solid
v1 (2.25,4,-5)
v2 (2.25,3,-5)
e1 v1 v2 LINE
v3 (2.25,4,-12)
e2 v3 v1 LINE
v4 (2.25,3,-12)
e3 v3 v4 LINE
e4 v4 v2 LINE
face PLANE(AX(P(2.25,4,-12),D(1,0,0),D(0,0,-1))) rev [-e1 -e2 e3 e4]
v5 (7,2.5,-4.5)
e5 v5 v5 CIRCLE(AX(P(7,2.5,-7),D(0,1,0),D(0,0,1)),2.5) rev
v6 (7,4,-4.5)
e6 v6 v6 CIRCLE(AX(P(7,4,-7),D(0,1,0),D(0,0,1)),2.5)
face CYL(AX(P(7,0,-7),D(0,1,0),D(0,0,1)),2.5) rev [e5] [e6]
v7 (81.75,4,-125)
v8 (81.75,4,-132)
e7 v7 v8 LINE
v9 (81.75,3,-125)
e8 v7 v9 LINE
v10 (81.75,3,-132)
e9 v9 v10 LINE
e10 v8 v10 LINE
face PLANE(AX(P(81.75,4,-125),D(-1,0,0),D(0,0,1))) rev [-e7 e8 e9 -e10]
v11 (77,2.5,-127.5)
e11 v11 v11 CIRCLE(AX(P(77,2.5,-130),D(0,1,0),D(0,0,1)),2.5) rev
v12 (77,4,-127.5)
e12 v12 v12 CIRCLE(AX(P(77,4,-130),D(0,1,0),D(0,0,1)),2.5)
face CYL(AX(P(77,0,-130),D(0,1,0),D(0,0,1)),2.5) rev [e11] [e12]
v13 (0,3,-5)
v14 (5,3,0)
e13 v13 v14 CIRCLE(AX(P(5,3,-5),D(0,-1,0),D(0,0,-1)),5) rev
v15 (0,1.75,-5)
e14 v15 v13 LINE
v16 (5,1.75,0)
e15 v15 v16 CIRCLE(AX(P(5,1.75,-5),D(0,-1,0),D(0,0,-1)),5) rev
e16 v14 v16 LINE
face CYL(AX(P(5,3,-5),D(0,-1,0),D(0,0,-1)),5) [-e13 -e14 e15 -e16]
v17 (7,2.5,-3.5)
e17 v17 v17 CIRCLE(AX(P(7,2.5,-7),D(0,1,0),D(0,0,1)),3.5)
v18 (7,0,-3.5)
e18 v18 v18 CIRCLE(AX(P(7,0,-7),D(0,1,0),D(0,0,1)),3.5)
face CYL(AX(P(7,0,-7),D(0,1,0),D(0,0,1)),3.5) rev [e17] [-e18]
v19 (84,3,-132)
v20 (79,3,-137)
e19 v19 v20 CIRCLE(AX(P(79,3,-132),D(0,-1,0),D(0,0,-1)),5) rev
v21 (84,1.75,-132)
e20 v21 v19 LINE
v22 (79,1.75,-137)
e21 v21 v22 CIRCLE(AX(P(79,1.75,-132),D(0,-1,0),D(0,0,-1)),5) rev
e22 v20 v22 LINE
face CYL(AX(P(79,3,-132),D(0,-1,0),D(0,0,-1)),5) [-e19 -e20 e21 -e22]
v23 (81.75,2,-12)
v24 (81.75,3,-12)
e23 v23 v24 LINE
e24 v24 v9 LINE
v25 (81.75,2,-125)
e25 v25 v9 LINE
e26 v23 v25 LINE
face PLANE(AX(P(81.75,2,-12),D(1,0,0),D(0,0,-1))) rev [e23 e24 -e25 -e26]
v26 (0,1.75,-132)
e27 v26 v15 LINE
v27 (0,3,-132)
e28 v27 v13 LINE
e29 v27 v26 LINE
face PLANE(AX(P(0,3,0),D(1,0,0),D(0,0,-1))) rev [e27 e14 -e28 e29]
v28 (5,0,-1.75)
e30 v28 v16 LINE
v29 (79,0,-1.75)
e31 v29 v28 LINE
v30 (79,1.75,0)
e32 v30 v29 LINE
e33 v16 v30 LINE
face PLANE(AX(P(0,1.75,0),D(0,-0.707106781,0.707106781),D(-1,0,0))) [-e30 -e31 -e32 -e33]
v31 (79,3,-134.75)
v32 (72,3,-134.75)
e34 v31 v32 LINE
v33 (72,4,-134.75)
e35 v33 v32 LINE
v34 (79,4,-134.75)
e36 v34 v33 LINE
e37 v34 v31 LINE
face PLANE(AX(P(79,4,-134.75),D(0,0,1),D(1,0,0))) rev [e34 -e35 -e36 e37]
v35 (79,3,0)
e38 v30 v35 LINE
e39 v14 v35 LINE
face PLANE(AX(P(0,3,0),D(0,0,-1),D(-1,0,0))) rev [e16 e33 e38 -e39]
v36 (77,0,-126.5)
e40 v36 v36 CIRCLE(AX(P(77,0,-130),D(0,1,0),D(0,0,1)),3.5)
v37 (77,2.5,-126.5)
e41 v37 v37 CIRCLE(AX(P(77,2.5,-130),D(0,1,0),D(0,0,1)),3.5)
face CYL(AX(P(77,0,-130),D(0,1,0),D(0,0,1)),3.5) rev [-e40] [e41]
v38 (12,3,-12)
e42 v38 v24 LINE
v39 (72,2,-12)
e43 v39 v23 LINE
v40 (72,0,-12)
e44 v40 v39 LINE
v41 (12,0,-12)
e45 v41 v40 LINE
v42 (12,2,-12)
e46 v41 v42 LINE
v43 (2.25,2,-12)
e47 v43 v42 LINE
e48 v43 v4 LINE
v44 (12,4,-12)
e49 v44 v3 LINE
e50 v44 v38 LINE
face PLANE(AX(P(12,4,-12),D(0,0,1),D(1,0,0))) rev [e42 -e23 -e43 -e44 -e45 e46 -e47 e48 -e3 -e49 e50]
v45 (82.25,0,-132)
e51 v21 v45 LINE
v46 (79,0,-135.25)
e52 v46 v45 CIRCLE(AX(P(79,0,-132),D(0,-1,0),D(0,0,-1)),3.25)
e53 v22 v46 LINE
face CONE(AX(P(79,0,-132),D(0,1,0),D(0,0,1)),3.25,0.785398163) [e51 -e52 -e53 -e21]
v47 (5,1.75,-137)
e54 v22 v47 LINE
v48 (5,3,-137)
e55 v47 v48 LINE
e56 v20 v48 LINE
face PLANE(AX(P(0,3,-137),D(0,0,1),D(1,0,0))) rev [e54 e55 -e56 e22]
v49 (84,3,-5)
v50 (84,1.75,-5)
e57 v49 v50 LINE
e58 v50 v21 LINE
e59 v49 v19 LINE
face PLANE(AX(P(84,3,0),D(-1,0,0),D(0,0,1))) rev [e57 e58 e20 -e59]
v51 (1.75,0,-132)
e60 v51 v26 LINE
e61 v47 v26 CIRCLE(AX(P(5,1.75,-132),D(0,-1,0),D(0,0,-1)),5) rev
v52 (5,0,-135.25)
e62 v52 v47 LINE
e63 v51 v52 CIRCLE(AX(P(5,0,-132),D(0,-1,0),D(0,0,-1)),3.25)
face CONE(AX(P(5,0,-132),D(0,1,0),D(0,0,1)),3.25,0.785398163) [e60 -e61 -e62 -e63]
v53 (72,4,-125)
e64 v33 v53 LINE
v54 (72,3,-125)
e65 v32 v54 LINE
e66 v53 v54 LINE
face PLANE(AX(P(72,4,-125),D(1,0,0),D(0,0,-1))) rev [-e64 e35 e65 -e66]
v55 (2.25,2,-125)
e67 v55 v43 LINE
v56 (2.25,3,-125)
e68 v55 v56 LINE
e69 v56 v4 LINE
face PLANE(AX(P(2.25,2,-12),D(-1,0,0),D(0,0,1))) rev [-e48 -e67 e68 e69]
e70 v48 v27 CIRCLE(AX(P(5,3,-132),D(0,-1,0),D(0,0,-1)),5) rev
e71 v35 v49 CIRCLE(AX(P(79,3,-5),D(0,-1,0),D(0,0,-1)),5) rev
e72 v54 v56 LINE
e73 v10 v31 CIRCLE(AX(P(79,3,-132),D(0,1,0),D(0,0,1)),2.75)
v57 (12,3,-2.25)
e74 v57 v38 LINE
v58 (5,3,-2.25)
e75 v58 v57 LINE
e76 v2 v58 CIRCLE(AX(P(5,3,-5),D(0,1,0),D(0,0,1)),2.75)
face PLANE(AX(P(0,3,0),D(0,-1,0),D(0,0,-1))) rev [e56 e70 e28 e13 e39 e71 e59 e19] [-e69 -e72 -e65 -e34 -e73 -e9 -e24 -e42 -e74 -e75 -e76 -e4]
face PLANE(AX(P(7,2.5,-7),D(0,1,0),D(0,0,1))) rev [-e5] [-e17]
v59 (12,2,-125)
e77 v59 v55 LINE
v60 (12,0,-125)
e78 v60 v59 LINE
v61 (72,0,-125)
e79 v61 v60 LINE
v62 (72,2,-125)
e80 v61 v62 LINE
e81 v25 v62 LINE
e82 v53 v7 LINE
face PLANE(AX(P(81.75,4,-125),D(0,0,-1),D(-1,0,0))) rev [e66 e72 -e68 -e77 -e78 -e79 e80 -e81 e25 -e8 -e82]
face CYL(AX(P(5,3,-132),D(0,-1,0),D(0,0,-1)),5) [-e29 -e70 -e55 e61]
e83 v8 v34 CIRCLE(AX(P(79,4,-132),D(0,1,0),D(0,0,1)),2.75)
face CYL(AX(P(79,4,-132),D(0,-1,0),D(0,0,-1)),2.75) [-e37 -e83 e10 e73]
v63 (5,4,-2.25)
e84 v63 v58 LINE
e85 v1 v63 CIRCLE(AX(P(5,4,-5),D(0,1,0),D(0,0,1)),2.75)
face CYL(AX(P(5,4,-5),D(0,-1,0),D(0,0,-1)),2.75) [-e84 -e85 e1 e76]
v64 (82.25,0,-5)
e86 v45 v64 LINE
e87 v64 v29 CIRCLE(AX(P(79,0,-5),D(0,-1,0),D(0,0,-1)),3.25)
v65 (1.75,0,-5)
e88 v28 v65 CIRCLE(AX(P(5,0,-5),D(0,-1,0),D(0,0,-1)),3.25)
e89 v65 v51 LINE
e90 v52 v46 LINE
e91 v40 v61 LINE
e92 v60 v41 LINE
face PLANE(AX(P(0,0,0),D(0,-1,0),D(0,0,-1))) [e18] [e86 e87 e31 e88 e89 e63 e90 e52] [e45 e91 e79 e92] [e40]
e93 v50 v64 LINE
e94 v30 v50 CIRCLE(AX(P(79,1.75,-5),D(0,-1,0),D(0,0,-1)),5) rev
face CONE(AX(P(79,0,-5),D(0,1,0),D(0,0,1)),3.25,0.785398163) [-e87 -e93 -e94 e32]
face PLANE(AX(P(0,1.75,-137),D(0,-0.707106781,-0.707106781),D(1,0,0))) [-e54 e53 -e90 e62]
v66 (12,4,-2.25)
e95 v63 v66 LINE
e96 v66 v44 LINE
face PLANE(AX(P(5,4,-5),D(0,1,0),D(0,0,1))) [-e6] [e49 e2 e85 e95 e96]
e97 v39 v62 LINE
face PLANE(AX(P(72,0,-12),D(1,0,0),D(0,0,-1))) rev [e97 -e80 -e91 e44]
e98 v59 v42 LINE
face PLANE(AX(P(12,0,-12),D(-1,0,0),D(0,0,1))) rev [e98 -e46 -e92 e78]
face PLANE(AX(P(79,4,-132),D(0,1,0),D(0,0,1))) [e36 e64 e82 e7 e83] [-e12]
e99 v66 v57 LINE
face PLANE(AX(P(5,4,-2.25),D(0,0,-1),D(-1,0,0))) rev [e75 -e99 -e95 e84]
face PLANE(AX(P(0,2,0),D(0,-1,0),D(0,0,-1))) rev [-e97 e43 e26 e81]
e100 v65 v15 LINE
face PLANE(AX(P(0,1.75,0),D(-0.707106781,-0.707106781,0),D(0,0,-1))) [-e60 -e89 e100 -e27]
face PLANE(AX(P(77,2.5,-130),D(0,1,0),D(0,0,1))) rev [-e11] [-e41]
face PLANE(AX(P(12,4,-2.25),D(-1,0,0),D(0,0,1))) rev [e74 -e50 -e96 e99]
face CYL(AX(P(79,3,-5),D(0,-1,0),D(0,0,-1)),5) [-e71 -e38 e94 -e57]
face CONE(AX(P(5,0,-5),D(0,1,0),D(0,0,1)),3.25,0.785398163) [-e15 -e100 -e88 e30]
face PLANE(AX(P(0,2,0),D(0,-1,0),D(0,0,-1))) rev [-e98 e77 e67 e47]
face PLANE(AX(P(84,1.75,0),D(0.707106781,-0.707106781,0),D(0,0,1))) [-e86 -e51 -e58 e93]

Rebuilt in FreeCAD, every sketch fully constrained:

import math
import FreeCAD as App
import Part
import Sketcher

V = App.Vector
Q = App.Units.Quantity


def edges_at(feature, points):
    """Names of the edges that pass closest to the given points."""
    edges = feature.Shape.Edges
    near = lambda p: min(range(len(edges)), key=lambda i: edges[i].distToShape(Part.Vertex(*p))[0])
    return sorted({f"Edge{near(p) + 1}" for p in points})


def add_polygon(sketch, points):
    """Adds a closed chain of lines whose ends are joined by coincident constraints."""
    first, n = sketch.GeometryCount, len(points)
    for a, b in zip(points, points[1:] + points[:1]):
        sketch.addGeometry(Part.LineSegment(App.Vector(*a, 0), App.Vector(*b, 0)), False)
    for i in range(n):
        sketch.addConstraint(Sketcher.Constraint("Coincident", first + i, 2, first + (i + 1) % n, 1))

doc = App.newDocument("Part")
body = doc.addObject("PartDesign::Body", "Body")

# Sketch on XZ plane
sketch1 = doc.addObject("Sketcher::SketchObject", "Sketch")
body.addObject(sketch1)
sketch1.AttachmentSupport = (doc.XZ_Plane, [""])
sketch1.MapMode = "FlatFace"
add_polygon(sketch1, [(0, -137), (0, 0), (84, 0), (84, -137)])  # lines 0-3
sketch1.addConstraint(Sketcher.Constraint("Vertical", 0))
sketch1.addConstraint(Sketcher.Constraint("Horizontal", 1))
sketch1.addConstraint(Sketcher.Constraint("Vertical", 2))
sketch1.addConstraint(Sketcher.Constraint("Horizontal", 3))
sketch1.addConstraint(Sketcher.Constraint("Coincident", 0, 2, -1, 1))
sketch1.addConstraint(Sketcher.Constraint("DistanceX", 1, 1, 1, 2, Q("84 mm")))
sketch1.addConstraint(Sketcher.Constraint("DistanceY", 0, 1, 0, 2, Q("137 mm")))
pad1 = doc.addObject("PartDesign::Pad", "Pad")
body.addObject(pad1)
pad1.Profile = sketch1
pad1.Length = 3
pad1.Reversed = True

# Sketch on XZ plane
sketch2 = doc.addObject("Sketcher::SketchObject", "Sketch001")
body.addObject(sketch2)
sketch2.AttachmentSupport = (doc.XZ_Plane, [""])
sketch2.MapMode = "FlatFace"
sketch2.AttachmentOffset = App.Placement(V(0, 0, -3), App.Rotation())
sketch2.addGeometry(Part.LineSegment(V(72, -125, 0), V(81.8, -125, 0)), False)
sketch2.addGeometry(Part.LineSegment(V(81.8, -125, 0), V(81.8, -132, 0)), False)
sketch2.addGeometry(Part.ArcOfCircle(Part.Circle(V(79, -132, 0), V(0, 0, 1), 2.8), math.radians(-90), math.radians(0)), False)
sketch2.addGeometry(Part.LineSegment(V(79, -134.8, 0), V(72, -134.8, 0)), False)
sketch2.addGeometry(Part.LineSegment(V(72, -134.8, 0), V(72, -125, 0)), False)
sketch2.addGeometry(Part.LineSegment(V(12, -2.2, 0), V(12, -12, 0)), False)
sketch2.addGeometry(Part.LineSegment(V(12, -12, 0), V(2.2, -12, 0)), False)
sketch2.addGeometry(Part.LineSegment(V(2.2, -12, 0), V(2.2, -5, 0)), False)
sketch2.addGeometry(Part.ArcOfCircle(Part.Circle(V(5, -5, 0), V(0, 0, 1), 2.8), math.radians(90), math.radians(180)), False)
sketch2.addGeometry(Part.LineSegment(V(5, -2.2, 0), V(12, -2.2, 0)), False)
sketch2.addConstraint(Sketcher.Constraint("Coincident", 0, 2, 1, 1))
sketch2.addConstraint(Sketcher.Constraint("Tangent", 1, 2, 2, 2))
sketch2.addConstraint(Sketcher.Constraint("Tangent", 2, 1, 3, 1))
sketch2.addConstraint(Sketcher.Constraint("Coincident", 3, 2, 4, 1))
sketch2.addConstraint(Sketcher.Constraint("Coincident", 4, 2, 0, 1))
sketch2.addConstraint(Sketcher.Constraint("Coincident", 5, 2, 6, 1))
sketch2.addConstraint(Sketcher.Constraint("Coincident", 6, 2, 7, 1))
sketch2.addConstraint(Sketcher.Constraint("Tangent", 7, 2, 8, 2))
sketch2.addConstraint(Sketcher.Constraint("Tangent", 8, 1, 9, 1))
sketch2.addConstraint(Sketcher.Constraint("Coincident", 9, 2, 5, 1))
sketch2.addConstraint(Sketcher.Constraint("Horizontal", 0))
sketch2.addConstraint(Sketcher.Constraint("Vertical", 1))
sketch2.addConstraint(Sketcher.Constraint("Horizontal", 3))
sketch2.addConstraint(Sketcher.Constraint("Vertical", 4))
sketch2.addConstraint(Sketcher.Constraint("Vertical", 5))
sketch2.addConstraint(Sketcher.Constraint("Horizontal", 6))
sketch2.addConstraint(Sketcher.Constraint("Vertical", 7))
sketch2.addConstraint(Sketcher.Constraint("Horizontal", 9))
sketch2.addConstraint(Sketcher.Constraint("Equal", 2, 8))
sketch2.addConstraint(Sketcher.Constraint("Equal", 0, 6))
sketch2.addConstraint(Sketcher.Constraint("Equal", 9, 1))
sketch2.addConstraint(Sketcher.Constraint("Equal", 4, 5))
sketch2.addConstraint(Sketcher.Constraint("DistanceX", 3, 2, 3, 1, Q("7 mm")))
sketch2.addConstraint(Sketcher.Constraint("Radius", 2, Q("2.75 mm")))
sketch2.addConstraint(Sketcher.Constraint("DistanceX", -1, 1, 2, 3, Q("79 mm")))
sketch2.addConstraint(Sketcher.Constraint("DistanceY", 2, 3, -1, 1, Q("132 mm")))
sketch2.addConstraint(Sketcher.Constraint("DistanceX", -1, 1, 8, 3, Q("5 mm")))
sketch2.addConstraint(Sketcher.Constraint("DistanceY", 8, 3, -1, 1, Q("5 mm")))
pad2 = doc.addObject("PartDesign::Pad", "Pad001")
body.addObject(pad2)
pad2.Profile = sketch2
pad2.Length = 1
pad2.Reversed = True
doc.recompute()

fillet = doc.addObject("PartDesign::Fillet", "Fillet")
body.addObject(fillet)
fillet.Base = (pad2, edges_at(pad2, [
    (0, 1.5, -137),
    (84, 1.5, -137),
    (84, 1.5, 0),
    (0, 1.5, 0),
]))
fillet.Radius = 5

# Sketch on XZ plane
sketch3 = doc.addObject("Sketcher::SketchObject", "Sketch002")
body.addObject(sketch3)
sketch3.AttachmentSupport = (doc.XZ_Plane, [""])
sketch3.MapMode = "FlatFace"
sketch3.AttachmentOffset = App.Placement(V(0, 0, -4), App.Rotation())
sketch3.addGeometry(Part.Circle(V(7, -7, 0), V(0, 0, 1), 2.5), False)
sketch3.addGeometry(Part.Circle(V(77, -130, 0), V(0, 0, 1), 2.5), False)
sketch3.addConstraint(Sketcher.Constraint("Equal", 0, 1))
sketch3.addConstraint(Sketcher.Constraint("Diameter", 0, Q("5 mm")))
sketch3.addConstraint(Sketcher.Constraint("DistanceX", -1, 1, 0, 3, Q("7 mm")))
sketch3.addConstraint(Sketcher.Constraint("DistanceY", 0, 3, -1, 1, Q("7 mm")))
sketch3.addConstraint(Sketcher.Constraint("DistanceX", -1, 1, 1, 3, Q("77 mm")))
sketch3.addConstraint(Sketcher.Constraint("DistanceY", 1, 3, -1, 1, Q("130 mm")))
pocket1 = doc.addObject("PartDesign::Pocket", "Pocket")
body.addObject(pocket1)
pocket1.Profile = sketch3
pocket1.Type = "ThroughAll"
pocket1.Reversed = True

# Sketch on XZ plane
sketch4 = doc.addObject("Sketcher::SketchObject", "Sketch003")
body.addObject(sketch4)
sketch4.AttachmentSupport = (doc.XZ_Plane, [""])
sketch4.MapMode = "FlatFace"
sketch4.AttachmentOffset = App.Placement(V(0, 0, -2.5), App.Rotation())
sketch4.addGeometry(Part.Circle(V(7, -7, 0), V(0, 0, 1), 3.5), False)
sketch4.addGeometry(Part.Circle(V(77, -130, 0), V(0, 0, 1), 3.5), False)
sketch4.addConstraint(Sketcher.Constraint("Equal", 0, 1))
sketch4.addConstraint(Sketcher.Constraint("Diameter", 0, Q("7 mm")))
sketch4.addConstraint(Sketcher.Constraint("DistanceX", -1, 1, 0, 3, Q("7 mm")))
sketch4.addConstraint(Sketcher.Constraint("DistanceY", 0, 3, -1, 1, Q("7 mm")))
sketch4.addConstraint(Sketcher.Constraint("DistanceX", -1, 1, 1, 3, Q("77 mm")))
sketch4.addConstraint(Sketcher.Constraint("DistanceY", 1, 3, -1, 1, Q("130 mm")))
pocket2 = doc.addObject("PartDesign::Pocket", "Pocket001")
body.addObject(pocket2)
pocket2.Profile = sketch4
pocket2.Type = "ThroughAll"
pocket2.Reversed = True

# Sketch on XZ plane
sketch5 = doc.addObject("Sketcher::SketchObject", "Sketch004")
body.addObject(sketch5)
sketch5.AttachmentSupport = (doc.XZ_Plane, [""])
sketch5.MapMode = "FlatFace"
sketch5.AttachmentOffset = App.Placement(V(0, 0, -3), App.Rotation())
add_polygon(sketch5, [(12, -125), (12, -12), (72, -12), (72, -125)])  # lines 0-3
sketch5.addConstraint(Sketcher.Constraint("Vertical", 0))
sketch5.addConstraint(Sketcher.Constraint("Horizontal", 1))
sketch5.addConstraint(Sketcher.Constraint("Vertical", 2))
sketch5.addConstraint(Sketcher.Constraint("Horizontal", 3))
sketch5.addConstraint(Sketcher.Constraint("DistanceX", 1, 1, 1, 2, Q("60 mm")))
sketch5.addConstraint(Sketcher.Constraint("DistanceY", 0, 1, 0, 2, Q("113 mm")))
sketch5.addConstraint(Sketcher.Constraint("DistanceX", -1, 1, 0, 2, Q("12 mm")))
sketch5.addConstraint(Sketcher.Constraint("DistanceY", 0, 2, -1, 1, Q("12 mm")))
pocket3 = doc.addObject("PartDesign::Pocket", "Pocket002")
body.addObject(pocket3)
pocket3.Profile = sketch5
pocket3.Type = "ThroughAll"
pocket3.Reversed = True

# Sketch on XZ plane
sketch6 = doc.addObject("Sketcher::SketchObject", "Sketch005")
body.addObject(sketch6)
sketch6.AttachmentSupport = (doc.XZ_Plane, [""])
sketch6.MapMode = "FlatFace"
sketch6.AttachmentOffset = App.Placement(V(0, 0, -3), App.Rotation())
add_polygon(sketch6, [(2, -125), (2, -12), (82, -12), (82, -125)])  # lines 0-3
sketch6.addConstraint(Sketcher.Constraint("Vertical", 0))
sketch6.addConstraint(Sketcher.Constraint("Horizontal", 1))
sketch6.addConstraint(Sketcher.Constraint("Vertical", 2))
sketch6.addConstraint(Sketcher.Constraint("Horizontal", 3))
sketch6.addConstraint(Sketcher.Constraint("DistanceY", 0, 1, 0, 2, Q("113 mm")))
sketch6.addConstraint(Sketcher.Constraint("DistanceX", 1, 1, 1, 2, Q("79.5 mm")))
sketch6.addConstraint(Sketcher.Constraint("DistanceY", 0, 2, -1, 1, Q("12 mm")))
sketch6.addConstraint(Sketcher.Constraint("DistanceX", -1, 1, 0, 2, Q("2.25 mm")))
pocket4 = doc.addObject("PartDesign::Pocket", "Pocket003")
body.addObject(pocket4)
pocket4.Profile = sketch6
pocket4.Length = 1
pocket4.Reversed = True
doc.recompute()

chamfer = doc.addObject("PartDesign::Chamfer", "Chamfer")
body.addObject(chamfer)
chamfer.Base = (pocket4, edges_at(pocket4, [
    (84, 0, -68.5),
    (0, 0, -68.5),
    (42, 0, -137),
    (42, 0, 0),
    (82.536, 0, -135.536),
    (1.464, 0, -135.536),
    (1.464, 0, -1.464),
    (82.536, 0, -1.464),
]))
chamfer.Size = 1.75

doc.recompute()
